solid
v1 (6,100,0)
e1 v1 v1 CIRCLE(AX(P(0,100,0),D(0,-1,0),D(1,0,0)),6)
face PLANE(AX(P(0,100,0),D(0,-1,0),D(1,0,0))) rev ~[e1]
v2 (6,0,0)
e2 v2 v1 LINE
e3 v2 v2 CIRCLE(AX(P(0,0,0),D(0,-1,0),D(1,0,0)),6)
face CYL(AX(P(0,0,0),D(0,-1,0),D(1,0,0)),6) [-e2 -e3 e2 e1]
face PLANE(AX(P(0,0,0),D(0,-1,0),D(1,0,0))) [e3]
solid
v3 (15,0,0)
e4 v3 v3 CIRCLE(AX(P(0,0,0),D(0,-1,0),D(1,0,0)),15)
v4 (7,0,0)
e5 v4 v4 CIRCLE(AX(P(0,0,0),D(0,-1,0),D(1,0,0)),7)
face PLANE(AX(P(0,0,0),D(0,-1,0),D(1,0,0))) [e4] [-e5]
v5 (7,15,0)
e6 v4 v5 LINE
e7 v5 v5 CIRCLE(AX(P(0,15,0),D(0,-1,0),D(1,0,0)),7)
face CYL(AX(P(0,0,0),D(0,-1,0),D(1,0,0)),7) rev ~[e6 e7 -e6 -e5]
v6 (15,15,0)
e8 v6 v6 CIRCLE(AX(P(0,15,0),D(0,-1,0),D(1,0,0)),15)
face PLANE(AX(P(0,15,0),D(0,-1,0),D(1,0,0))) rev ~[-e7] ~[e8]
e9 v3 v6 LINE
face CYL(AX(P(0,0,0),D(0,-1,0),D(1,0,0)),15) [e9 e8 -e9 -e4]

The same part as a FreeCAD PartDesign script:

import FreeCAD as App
import Part
import Sketcher

V = App.Vector
Q = App.Units.Quantity

doc = App.newDocument("Part")
params = doc.addObject("Spreadsheet::Sheet", "Params")
for row, (alias, value) in enumerate([
    ("sketch1_diameter", "12 mm"),
    ("pad1_length", "100 mm"),
    ("sketch2_diameter", "30 mm"),
    ("sketch2_diameter2", "14 mm"),
    ("pad2_length", "15 mm"),
], start=1):
    params.set(f"A{row}", alias)
    params.set(f"B{row}", "=" + value)
    params.setAlias(f"B{row}", alias)

body = doc.addObject("PartDesign::Body", "Body")

sketch1 = body.newObject("Sketcher::SketchObject", "Sketch")
sketch1.AttachmentSupport = (doc.getObject("XZ_Plane"), [""])
sketch1.MapMode = "FlatFace"
sketch1.addGeometry(Part.Circle(V(0, 0, 0), V(0, 0, 1), 6), False)
sketch1.addConstraint([
    Sketcher.Constraint("Coincident", 0, 3, -1, 1),
    Sketcher.Constraint("Diameter", 0, Q("12 mm")),
])
sketch1.setExpression("Constraints[1]", "Params.sketch1_diameter")
pad1 = body.newObject("PartDesign::Pad", "Pad")
pad1.Profile = sketch1
pad1.setExpression("Length", "Params.pad1_length")
pad1.Reversed = True
body2 = doc.addObject("PartDesign::Body", "Body001")

sketch2 = body2.newObject("Sketcher::SketchObject", "Sketch001")
sketch2.AttachmentSupport = (doc.getObject("XZ_Plane001"), [""])
sketch2.MapMode = "FlatFace"
sketch2.addGeometry([
    Part.Circle(V(0, 0, 0), V(0, 0, 1), 15),
    Part.Circle(V(0, 0, 0), V(0, 0, 1), 7),
], False)
sketch2.addConstraint([
    Sketcher.Constraint("Coincident", 0, 3, -1, 1),
    Sketcher.Constraint("Coincident", 1, 3, -1, 1),
    Sketcher.Constraint("Diameter", 0, Q("30 mm")),
    Sketcher.Constraint("Diameter", 1, Q("14 mm")),
])
sketch2.setExpression("Constraints[2]", "Params.sketch2_diameter")
sketch2.setExpression("Constraints[3]", "Params.sketch2_diameter2")
pad2 = body2.newObject("PartDesign::Pad", "Pad001")
pad2.Profile = sketch2
pad2.setExpression("Length", "Params.pad2_length")
pad2.Reversed = True

doc.recompute()
